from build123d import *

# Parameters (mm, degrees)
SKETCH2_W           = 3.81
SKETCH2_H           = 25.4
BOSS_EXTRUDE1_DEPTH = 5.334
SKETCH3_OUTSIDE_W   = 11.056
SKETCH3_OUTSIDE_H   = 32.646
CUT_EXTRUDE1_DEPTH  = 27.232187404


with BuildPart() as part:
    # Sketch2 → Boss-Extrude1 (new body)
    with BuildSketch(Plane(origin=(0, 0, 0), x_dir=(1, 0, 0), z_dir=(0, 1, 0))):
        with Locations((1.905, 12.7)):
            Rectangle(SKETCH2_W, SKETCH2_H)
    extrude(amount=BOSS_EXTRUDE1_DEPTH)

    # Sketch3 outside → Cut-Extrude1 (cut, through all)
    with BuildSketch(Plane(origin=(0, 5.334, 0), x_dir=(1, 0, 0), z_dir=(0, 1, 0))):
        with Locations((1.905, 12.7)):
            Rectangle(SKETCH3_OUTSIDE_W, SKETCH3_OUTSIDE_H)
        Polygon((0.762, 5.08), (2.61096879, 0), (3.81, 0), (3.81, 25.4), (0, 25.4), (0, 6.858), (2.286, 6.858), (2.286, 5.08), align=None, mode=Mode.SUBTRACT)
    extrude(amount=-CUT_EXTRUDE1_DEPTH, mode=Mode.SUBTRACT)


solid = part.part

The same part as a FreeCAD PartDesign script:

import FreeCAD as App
import Part
import Sketcher
from FreeCAD import Vector
Q = App.Units.Quantity

doc = App.newDocument("Part")
body = doc.addObject("PartDesign::Body", "Body")

# Sketch on XZ plane
sketch1 = body.newObject("Sketcher::SketchObject", "Sketch")
sketch1.AttachmentSupport = (doc.getObject("XZ_Plane"), [""])
sketch1.MapMode = "FlatFace"
sketch1.addGeometry([
    Part.LineSegment(Vector(0, -25.4, 0), Vector(0, 0, 0)),
    Part.LineSegment(Vector(0, 0, 0), Vector(3.81, 0, 0)),
    Part.LineSegment(Vector(3.81, 0, 0), Vector(3.81, -25.4, 0)),
    Part.LineSegment(Vector(3.81, -25.4, 0), Vector(0, -25.4, 0)),
], False)
sketch1.addConstraint([
    Sketcher.Constraint("Coincident", 0, 2, 1, 1),
    Sketcher.Constraint("Coincident", 1, 2, 2, 1),
    Sketcher.Constraint("Coincident", 2, 2, 3, 1),
    Sketcher.Constraint("Coincident", 3, 2, 0, 1),
    Sketcher.Constraint("Vertical", 0),
    Sketcher.Constraint("Horizontal", 1),
    Sketcher.Constraint("Vertical", 2),
    Sketcher.Constraint("Horizontal", 3),
    Sketcher.Constraint("Coincident", 0, 2, -1, 1),
    Sketcher.Constraint("DistanceY", 0, 1, 0, 2, Q("1 in")),
    Sketcher.Constraint("DistanceX", 1, 1, 1, 2, Q("0.15 in")),
])
pad1 = body.newObject("PartDesign::Pad", "Pad")
pad1.Profile = sketch1
pad1.Length = Q("0.21 in")
pad1.Reversed = True

# Sketch on XZ plane
sketch2 = body.newObject("Sketcher::SketchObject", "Sketch001")
sketch2.AttachmentSupport = (doc.getObject("XZ_Plane"), [""])
sketch2.MapMode = "FlatFace"
sketch2.AttachmentOffset = App.Placement(Vector(0, 0, -0.21 * 25.4), App.Rotation())
sketch2.addGeometry([
    Part.LineSegment(Vector(-3.623, -29.023, 0), Vector(-3.623, 3.623, 0)),  # 0
    Part.LineSegment(Vector(-3.623, 3.623, 0), Vector(7.433, 3.623, 0)),  # 1
    Part.LineSegment(Vector(7.433, 3.623, 0), Vector(7.433, -29.023, 0)),  # 2
    Part.LineSegment(Vector(7.433, -29.023, 0), Vector(-3.623, -29.023, 0)),  # 3
    Part.LineSegment(Vector(2.610969, 0, 0), Vector(0.762, -5.08, 0)),  # 4
    Part.LineSegment(Vector(0.762, -5.08, 0), Vector(2.286, -5.08, 0)),  # 5
    Part.LineSegment(Vector(2.286, -5.08, 0), Vector(2.286, -6.858, 0)),  # 6
    Part.LineSegment(Vector(2.286, -6.858, 0), Vector(0, -6.858, 0)),  # 7
    Part.LineSegment(Vector(0, -6.858, 0), Vector(0, -25.4, 0)),  # 8
    Part.LineSegment(Vector(0, -25.4, 0), Vector(3.81, -25.4, 0)),  # 9
    Part.LineSegment(Vector(3.81, -25.4, 0), Vector(3.81, 0, 0)),  # 10
    Part.LineSegment(Vector(3.81, 0, 0), Vector(2.610969, 0, 0)),  # 11
], False)
sketch2.addConstraint([
    Sketcher.Constraint("Coincident", 0, 2, 1, 1),
    Sketcher.Constraint("Coincident", 1, 2, 2, 1),
    Sketcher.Constraint("Coincident", 2, 2, 3, 1),
    Sketcher.Constraint("Coincident", 3, 2, 0, 1),
    Sketcher.Constraint("Coincident", 4, 2, 5, 1),
    Sketcher.Constraint("Coincident", 5, 2, 6, 1),
    Sketcher.Constraint("Coincident", 6, 2, 7, 1),
    Sketcher.Constraint("Coincident", 7, 2, 8, 1),
    Sketcher.Constraint("Coincident", 8, 2, 9, 1),
    Sketcher.Constraint("Coincident", 9, 2, 10, 1),
    Sketcher.Constraint("Coincident", 10, 2, 11, 1),
    Sketcher.Constraint("Coincident", 11, 2, 4, 1),
    Sketcher.Constraint("Vertical", 0),
    Sketcher.Constraint("Horizontal", 1),
    Sketcher.Constraint("Vertical", 2),
    Sketcher.Constraint("Horizontal", 3),
    Sketcher.Constraint("Horizontal", 5),
    Sketcher.Constraint("Vertical", 6),
    Sketcher.Constraint("Horizontal", 7),
    Sketcher.Constraint("Vertical", 8),
    Sketcher.Constraint("Horizontal", 9),
    Sketcher.Constraint("Vertical", 10),
    Sketcher.Constraint("Horizontal", 11),
    Sketcher.Constraint("PointOnObject", 7, 2, -2),
    Sketcher.Constraint("PointOnObject", 10, 2, -1),
    Sketcher.Constraint("DistanceY", 10, 1, 10, 2, Q("1 in")),
    Sketcher.Constraint("Angle", 4, Q("-110 deg")),
    Sketcher.Constraint("DistanceX", 5, 1, 5, 2, Q("0.06 in")),
    Sketcher.Constraint("DistanceX", 7, 2, 7, 1, Q("0.09 in")),
    Sketcher.Constraint("DistanceX", 9, 1, 9, 2, Q("0.15 in")),
    Sketcher.Constraint("DistanceY", 6, 2, 6, 1, Q("0.07 in")),
    Sketcher.Constraint("DistanceY", 8, 2, 8, 1, Q("0.73 in")),
    Sketcher.Constraint("DistanceX", 1, 1, 1, 2, Q("11.056 mm")),
    Sketcher.Constraint("DistanceY", 0, 1, 0, 2, Q("32.646 mm")),
    Sketcher.Constraint("DistanceX", 0, 2, -1, 1, Q("3.623 mm")),
    Sketcher.Constraint("DistanceY", -1, 1, 0, 2, Q("3.623 mm")),
])
pocket1 = body.newObject("PartDesign::Pocket", "Pocket")
pocket1.Profile = sketch2
pocket1.Type = "ThroughAll"
pocket1.Reversed = True

doc.recompute()
